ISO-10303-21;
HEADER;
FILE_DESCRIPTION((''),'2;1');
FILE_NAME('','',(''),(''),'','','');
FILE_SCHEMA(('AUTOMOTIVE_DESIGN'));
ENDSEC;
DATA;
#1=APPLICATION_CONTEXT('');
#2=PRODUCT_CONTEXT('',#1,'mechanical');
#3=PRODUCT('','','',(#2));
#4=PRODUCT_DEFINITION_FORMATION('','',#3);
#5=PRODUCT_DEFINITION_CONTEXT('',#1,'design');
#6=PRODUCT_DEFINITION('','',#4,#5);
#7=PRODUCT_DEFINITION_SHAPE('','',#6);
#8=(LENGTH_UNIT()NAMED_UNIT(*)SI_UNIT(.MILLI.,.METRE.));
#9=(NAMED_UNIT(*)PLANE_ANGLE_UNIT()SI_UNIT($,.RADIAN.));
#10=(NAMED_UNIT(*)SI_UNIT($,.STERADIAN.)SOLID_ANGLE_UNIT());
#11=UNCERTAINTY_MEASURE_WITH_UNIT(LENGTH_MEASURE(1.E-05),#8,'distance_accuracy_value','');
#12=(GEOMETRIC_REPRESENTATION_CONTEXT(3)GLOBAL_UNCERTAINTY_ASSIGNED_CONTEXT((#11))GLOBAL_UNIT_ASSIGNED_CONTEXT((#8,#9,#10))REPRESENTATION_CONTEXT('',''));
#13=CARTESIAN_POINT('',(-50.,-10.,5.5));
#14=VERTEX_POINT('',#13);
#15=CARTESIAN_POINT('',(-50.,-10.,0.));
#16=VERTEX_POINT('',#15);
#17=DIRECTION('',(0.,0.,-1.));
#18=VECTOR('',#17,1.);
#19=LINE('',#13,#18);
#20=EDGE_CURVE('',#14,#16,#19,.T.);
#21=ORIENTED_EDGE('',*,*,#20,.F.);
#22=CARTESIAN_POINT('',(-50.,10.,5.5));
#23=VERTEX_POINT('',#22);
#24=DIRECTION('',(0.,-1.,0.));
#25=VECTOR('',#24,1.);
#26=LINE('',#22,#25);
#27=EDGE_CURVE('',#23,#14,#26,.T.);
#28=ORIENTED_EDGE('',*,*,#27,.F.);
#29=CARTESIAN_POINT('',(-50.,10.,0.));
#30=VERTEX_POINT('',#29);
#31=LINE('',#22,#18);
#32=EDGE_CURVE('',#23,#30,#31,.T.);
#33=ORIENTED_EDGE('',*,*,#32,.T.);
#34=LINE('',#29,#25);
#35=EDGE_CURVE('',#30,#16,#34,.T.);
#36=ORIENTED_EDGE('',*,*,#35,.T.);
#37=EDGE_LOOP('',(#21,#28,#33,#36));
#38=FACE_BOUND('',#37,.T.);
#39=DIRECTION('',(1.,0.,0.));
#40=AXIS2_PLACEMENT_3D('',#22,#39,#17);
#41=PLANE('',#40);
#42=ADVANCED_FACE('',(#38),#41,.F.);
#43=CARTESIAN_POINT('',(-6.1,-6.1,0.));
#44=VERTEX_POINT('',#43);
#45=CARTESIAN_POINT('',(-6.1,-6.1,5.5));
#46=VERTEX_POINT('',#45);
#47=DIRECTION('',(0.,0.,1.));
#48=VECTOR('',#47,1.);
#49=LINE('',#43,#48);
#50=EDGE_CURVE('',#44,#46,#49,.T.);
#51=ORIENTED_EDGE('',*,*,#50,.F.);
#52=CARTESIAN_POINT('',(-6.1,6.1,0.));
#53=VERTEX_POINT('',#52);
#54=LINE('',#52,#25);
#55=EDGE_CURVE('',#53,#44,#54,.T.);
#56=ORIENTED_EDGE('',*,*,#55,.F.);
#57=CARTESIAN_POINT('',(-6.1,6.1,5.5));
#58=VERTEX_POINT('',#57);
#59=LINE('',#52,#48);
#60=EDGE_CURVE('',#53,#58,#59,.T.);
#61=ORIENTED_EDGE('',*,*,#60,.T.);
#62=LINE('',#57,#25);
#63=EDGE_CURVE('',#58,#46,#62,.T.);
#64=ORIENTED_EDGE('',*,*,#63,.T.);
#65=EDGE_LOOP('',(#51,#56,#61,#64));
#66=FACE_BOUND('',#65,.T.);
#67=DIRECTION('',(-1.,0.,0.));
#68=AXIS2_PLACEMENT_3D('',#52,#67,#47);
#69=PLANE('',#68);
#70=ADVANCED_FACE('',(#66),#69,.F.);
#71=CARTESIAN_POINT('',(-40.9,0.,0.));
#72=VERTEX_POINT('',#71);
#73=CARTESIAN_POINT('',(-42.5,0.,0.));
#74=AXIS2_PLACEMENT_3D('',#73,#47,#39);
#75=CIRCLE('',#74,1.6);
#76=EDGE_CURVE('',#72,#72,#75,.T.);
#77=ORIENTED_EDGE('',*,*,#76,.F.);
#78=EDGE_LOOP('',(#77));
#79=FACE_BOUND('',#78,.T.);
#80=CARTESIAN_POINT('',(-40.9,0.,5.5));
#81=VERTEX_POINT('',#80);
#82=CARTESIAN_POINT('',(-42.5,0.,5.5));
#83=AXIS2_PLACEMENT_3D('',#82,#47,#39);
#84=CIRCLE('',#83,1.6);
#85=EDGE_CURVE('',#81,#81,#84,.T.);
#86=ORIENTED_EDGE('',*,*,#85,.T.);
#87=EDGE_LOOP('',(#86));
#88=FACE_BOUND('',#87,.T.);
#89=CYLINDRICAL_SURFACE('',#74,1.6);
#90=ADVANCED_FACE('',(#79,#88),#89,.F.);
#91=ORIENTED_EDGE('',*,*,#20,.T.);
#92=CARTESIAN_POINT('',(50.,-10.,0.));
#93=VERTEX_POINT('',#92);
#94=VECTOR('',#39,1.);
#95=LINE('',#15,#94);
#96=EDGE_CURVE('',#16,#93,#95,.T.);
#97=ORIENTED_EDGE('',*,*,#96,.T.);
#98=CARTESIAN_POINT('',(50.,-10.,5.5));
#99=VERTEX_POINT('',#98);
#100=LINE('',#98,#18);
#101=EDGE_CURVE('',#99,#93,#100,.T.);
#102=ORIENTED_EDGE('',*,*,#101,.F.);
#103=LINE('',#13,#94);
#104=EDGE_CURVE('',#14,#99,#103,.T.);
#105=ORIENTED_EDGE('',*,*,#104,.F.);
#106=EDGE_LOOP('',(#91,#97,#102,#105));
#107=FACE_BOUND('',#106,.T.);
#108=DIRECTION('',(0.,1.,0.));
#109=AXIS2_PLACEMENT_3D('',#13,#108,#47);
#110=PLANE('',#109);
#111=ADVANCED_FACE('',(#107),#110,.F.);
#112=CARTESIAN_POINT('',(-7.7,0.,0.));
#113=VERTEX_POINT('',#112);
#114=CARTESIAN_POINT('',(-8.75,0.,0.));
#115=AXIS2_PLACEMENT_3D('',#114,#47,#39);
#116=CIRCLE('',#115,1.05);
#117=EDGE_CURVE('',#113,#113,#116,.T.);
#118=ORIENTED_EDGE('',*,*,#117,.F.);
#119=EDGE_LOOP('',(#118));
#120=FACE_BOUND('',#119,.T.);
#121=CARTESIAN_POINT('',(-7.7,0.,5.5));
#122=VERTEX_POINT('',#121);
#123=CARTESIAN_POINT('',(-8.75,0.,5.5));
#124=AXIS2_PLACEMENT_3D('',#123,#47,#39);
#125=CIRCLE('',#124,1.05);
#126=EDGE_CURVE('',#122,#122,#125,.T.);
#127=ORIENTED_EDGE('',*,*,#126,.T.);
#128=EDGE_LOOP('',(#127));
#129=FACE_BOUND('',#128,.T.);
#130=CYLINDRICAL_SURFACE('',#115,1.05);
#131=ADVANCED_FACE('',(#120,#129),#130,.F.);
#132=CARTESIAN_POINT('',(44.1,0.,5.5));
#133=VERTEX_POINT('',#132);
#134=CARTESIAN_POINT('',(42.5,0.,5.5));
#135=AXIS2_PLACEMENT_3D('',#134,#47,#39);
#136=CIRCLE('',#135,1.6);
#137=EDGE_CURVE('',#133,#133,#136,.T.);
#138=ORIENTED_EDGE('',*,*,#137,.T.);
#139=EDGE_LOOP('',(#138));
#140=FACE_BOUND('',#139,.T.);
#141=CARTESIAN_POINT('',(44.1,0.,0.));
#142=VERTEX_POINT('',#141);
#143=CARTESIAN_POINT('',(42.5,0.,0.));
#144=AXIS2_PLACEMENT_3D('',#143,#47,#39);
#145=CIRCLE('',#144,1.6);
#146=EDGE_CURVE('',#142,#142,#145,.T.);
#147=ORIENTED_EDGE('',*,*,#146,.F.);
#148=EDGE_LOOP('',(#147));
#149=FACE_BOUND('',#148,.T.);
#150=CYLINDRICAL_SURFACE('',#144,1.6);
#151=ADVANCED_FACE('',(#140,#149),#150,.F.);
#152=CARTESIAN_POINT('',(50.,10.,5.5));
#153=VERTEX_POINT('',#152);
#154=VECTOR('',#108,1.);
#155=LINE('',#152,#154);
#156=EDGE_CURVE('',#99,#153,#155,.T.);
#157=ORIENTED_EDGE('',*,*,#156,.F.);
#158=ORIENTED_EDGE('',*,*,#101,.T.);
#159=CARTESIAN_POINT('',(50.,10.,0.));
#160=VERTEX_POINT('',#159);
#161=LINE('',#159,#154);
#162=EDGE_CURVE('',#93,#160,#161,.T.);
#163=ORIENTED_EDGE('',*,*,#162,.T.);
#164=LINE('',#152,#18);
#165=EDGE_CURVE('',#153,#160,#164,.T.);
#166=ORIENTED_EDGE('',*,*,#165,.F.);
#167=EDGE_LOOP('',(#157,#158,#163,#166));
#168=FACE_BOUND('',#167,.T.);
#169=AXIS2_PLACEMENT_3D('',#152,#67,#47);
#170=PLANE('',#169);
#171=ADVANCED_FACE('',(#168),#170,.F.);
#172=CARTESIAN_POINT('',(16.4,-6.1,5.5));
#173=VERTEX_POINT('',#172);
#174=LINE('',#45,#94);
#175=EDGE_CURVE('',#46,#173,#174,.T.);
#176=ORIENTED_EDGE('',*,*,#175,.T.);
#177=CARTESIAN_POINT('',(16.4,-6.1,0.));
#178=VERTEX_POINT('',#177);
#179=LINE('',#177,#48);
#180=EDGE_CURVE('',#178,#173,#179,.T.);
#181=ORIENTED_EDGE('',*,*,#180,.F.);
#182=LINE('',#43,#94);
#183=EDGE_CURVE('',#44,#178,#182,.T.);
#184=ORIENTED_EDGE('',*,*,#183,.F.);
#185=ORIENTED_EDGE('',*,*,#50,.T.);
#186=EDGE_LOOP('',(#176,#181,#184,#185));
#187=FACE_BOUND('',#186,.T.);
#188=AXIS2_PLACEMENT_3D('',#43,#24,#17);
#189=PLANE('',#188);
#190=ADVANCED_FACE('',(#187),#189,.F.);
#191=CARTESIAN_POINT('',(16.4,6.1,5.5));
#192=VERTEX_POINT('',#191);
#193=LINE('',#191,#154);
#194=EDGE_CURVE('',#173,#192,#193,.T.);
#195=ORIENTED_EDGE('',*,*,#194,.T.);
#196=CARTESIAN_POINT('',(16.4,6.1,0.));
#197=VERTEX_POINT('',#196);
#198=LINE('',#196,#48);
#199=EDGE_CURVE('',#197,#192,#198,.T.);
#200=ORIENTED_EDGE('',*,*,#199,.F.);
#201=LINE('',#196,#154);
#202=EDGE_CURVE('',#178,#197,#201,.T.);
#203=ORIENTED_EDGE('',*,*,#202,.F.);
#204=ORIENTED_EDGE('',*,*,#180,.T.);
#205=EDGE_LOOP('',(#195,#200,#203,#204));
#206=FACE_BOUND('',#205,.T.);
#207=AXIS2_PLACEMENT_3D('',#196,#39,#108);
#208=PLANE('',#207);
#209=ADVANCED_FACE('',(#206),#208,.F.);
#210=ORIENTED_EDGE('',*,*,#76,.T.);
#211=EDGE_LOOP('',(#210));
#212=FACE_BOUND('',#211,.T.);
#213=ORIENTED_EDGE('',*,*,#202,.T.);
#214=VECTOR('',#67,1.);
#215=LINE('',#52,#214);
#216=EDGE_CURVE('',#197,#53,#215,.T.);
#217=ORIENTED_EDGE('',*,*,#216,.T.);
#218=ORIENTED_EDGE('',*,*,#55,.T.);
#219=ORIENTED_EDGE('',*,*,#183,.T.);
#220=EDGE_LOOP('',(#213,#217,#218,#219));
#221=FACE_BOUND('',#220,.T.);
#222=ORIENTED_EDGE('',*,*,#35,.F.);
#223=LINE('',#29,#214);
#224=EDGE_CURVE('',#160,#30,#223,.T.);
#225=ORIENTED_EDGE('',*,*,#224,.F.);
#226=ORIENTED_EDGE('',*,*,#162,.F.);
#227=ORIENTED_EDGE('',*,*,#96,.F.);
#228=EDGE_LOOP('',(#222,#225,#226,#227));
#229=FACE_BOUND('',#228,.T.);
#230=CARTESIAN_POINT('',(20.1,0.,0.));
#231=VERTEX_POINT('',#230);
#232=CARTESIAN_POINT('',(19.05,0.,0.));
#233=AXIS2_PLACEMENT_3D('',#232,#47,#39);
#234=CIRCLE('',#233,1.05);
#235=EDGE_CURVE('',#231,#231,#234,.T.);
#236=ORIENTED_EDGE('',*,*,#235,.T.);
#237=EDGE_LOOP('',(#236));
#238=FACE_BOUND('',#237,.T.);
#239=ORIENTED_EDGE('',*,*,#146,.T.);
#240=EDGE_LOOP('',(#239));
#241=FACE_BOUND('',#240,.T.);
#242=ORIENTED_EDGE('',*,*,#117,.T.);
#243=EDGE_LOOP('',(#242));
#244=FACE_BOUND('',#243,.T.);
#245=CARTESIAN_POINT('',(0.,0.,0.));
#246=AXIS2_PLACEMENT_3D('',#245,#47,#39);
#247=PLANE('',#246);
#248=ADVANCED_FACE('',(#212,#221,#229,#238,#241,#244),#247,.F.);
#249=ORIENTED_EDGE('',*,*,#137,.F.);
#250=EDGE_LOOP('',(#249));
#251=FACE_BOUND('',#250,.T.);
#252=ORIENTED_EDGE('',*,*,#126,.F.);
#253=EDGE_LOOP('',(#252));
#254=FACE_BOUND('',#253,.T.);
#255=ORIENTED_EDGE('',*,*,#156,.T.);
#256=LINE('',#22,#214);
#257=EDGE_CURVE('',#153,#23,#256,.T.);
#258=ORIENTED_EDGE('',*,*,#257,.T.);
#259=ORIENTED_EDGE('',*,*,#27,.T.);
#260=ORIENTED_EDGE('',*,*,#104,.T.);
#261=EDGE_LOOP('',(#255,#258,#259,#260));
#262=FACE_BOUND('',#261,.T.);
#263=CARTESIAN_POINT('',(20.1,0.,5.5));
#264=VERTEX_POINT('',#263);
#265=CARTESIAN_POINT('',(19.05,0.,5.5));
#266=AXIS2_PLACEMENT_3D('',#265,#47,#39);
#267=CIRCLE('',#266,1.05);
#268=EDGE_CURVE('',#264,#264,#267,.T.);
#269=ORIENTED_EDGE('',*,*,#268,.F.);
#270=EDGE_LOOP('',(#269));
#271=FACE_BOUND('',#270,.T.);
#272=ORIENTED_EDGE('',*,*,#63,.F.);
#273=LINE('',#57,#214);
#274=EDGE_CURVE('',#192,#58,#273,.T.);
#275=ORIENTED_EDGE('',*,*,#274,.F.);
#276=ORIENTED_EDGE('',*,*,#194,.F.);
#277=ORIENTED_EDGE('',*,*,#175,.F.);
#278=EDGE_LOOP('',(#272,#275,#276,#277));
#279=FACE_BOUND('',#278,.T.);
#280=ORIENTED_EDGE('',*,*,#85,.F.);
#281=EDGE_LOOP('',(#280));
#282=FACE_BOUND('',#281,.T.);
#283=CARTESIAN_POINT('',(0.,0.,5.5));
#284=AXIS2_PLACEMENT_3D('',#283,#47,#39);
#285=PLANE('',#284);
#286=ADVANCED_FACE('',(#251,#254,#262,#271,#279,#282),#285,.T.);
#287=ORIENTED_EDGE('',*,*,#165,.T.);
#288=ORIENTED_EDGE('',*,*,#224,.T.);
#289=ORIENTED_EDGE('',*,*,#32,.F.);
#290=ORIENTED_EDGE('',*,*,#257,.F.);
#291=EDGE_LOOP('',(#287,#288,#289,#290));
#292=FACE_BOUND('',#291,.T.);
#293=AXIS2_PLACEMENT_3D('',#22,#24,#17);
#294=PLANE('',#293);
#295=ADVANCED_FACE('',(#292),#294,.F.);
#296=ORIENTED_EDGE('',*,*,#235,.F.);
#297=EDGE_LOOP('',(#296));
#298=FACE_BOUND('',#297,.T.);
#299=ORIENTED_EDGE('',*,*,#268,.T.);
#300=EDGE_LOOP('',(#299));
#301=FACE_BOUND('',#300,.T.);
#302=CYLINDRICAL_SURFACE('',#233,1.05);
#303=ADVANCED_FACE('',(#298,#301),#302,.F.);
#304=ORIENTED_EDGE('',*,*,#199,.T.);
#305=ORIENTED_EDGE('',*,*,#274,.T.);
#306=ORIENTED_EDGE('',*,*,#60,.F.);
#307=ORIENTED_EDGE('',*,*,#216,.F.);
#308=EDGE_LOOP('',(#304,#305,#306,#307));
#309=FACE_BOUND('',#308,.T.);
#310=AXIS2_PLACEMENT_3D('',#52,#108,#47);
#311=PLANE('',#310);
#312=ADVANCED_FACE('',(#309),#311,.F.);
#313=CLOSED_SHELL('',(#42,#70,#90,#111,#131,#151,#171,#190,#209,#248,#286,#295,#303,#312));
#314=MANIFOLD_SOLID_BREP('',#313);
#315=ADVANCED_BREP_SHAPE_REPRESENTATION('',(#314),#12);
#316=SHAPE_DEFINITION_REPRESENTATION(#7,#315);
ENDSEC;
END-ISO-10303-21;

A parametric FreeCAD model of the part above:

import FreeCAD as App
import Part
import Sketcher
from FreeCAD import Vector

doc = App.newDocument("Part")
params = doc.addObject("Spreadsheet::Sheet", "Params")
for row, (alias, value) in enumerate([
    ("sketch1_width", "100 mm"),
    ("sketch1_height", "20 mm"),
    ("pad1_length", "5.5 mm"),
    ("sketch2_diameter", "3.2 mm"),
    ("sketch2_diameter2", "2.1 mm"),
    ("sketch2_width", "22.5 mm"),
    ("sketch2_height", "12.2 mm"),
], start=1):
    params.set(f"A{row}", alias)
    params.set(f"B{row}", "=" + value)
    params.setAlias(f"B{row}", alias)

body = doc.addObject("PartDesign::Body", "Body")

sketch1 = doc.addObject("Sketcher::SketchObject", "Sketch")
body.addObject(sketch1)
sketch1.AttachmentSupport = (doc.XY_Plane, [""])
sketch1.MapMode = "FlatFace"
sketch1.addGeometry(Part.LineSegment(Vector(-50, 10, 0), Vector(-50, -10, 0)), False)
sketch1.addGeometry(Part.LineSegment(Vector(-50, -10, 0), Vector(50, -10, 0)), False)
sketch1.addGeometry(Part.LineSegment(Vector(50, -10, 0), Vector(50, 10, 0)), False)
sketch1.addGeometry(Part.LineSegment(Vector(50, 10, 0), Vector(-50, 10, 0)), False)
sketch1.addConstraint(Sketcher.Constraint("Coincident", 0, 2, 1, 1))
sketch1.addConstraint(Sketcher.Constraint("Coincident", 1, 2, 2, 1))
sketch1.addConstraint(Sketcher.Constraint("Coincident", 2, 2, 3, 1))
sketch1.addConstraint(Sketcher.Constraint("Coincident", 3, 2, 0, 1))
sketch1.addConstraint(Sketcher.Constraint("Vertical", 0))
sketch1.addConstraint(Sketcher.Constraint("Horizontal", 1))
sketch1.addConstraint(Sketcher.Constraint("Vertical", 2))
sketch1.addConstraint(Sketcher.Constraint("Horizontal", 3))
sketch1.addConstraint(Sketcher.Constraint("Symmetric", 0, 2, 2, 2, -1, 1))
sketch1.addConstraint(Sketcher.Constraint("DistanceX", 1, 1, 1, 2, 100.0))
sketch1.addConstraint(Sketcher.Constraint("DistanceY", 0, 2, 0, 1, 20.0))
sketch1.setExpression("Constraints[9]", "Params.sketch1_width")
sketch1.setExpression("Constraints[10]", "Params.sketch1_height")
pad1 = doc.addObject("PartDesign::Pad", "Pad")
body.addObject(pad1)
pad1.Profile = sketch1
pad1.setExpression("Length", "Params.pad1_length")

sketch2 = doc.addObject("Sketcher::SketchObject", "Sketch001")
body.addObject(sketch2)
sketch2.AttachmentSupport = (doc.XY_Plane, [""])
sketch2.MapMode = "FlatFace"
sketch2.AttachmentOffset = App.Placement(Vector(0, 0, 5.5), App.Rotation())
sketch2.addGeometry(Part.Circle(Vector(-42.5, 0, 0), Vector(0, 0, 1), 1.6), False)
sketch2.addGeometry(Part.Circle(Vector(42.5, 0, 0), Vector(0, 0, 1), 1.6), False)
sketch2.addGeometry(Part.Circle(Vector(-8.8, 0, 0), Vector(0, 0, 1), 1.1), False)
sketch2.addGeometry(Part.Circle(Vector(19.1, 0, 0), Vector(0, 0, 1), 1.1), False)
sketch2.addGeometry(Part.LineSegment(Vector(-6.1, 6.1, 0), Vector(-6.1, -6.1, 0)), False)
sketch2.addGeometry(Part.LineSegment(Vector(-6.1, -6.1, 0), Vector(16.4, -6.1, 0)), False)
sketch2.addGeometry(Part.LineSegment(Vector(16.4, -6.1, 0), Vector(16.4, 6.1, 0)), False)
sketch2.addGeometry(Part.LineSegment(Vector(16.4, 6.1, 0), Vector(-6.1, 6.1, 0)), False)
sketch2.addConstraint(Sketcher.Constraint("Coincident", 4, 2, 5, 1))
sketch2.addConstraint(Sketcher.Constraint("Coincident", 5, 2, 6, 1))
sketch2.addConstraint(Sketcher.Constraint("Coincident", 6, 2, 7, 1))
sketch2.addConstraint(Sketcher.Constraint("Coincident", 7, 2, 4, 1))
sketch2.addConstraint(Sketcher.Constraint("Vertical", 4))
sketch2.addConstraint(Sketcher.Constraint("Horizontal", 5))
sketch2.addConstraint(Sketcher.Constraint("Vertical", 6))
sketch2.addConstraint(Sketcher.Constraint("Horizontal", 7))
sketch2.addConstraint(Sketcher.Constraint("Equal", 0, 1))
sketch2.addConstraint(Sketcher.Constraint("Equal", 2, 3))
sketch2.addConstraint(Sketcher.Constraint("Symmetric", 0, 3, 1, 3, -1, 1))
sketch2.addConstraint(Sketcher.Constraint("PointOnObject", 0, 3, -1))
sketch2.addConstraint(Sketcher.Constraint("PointOnObject", 2, 3, -1))
sketch2.addConstraint(Sketcher.Constraint("PointOnObject", 3, 3, -1))
sketch2.addConstraint(Sketcher.Constraint("Diameter", 0, 3.2))
sketch2.addConstraint(Sketcher.Constraint("Diameter", 2, 2.1))
sketch2.addConstraint(Sketcher.Constraint("DistanceX", 5, 1, 5, 2, 22.5))
sketch2.addConstraint(Sketcher.Constraint("DistanceY", 4, 2, 4, 1, 12.2))
sketch2.addConstraint(Sketcher.Constraint("DistanceX", 0, 3, 1, 3, 85.0))
sketch2.addConstraint(Sketcher.Constraint("DistanceX", 4, 2, -1, 1, 6.1))
sketch2.addConstraint(Sketcher.Constraint("DistanceY", 4, 2, -1, 1, 6.1))
sketch2.addConstraint(Sketcher.Constraint("DistanceX", 2, 3, 3, 3, 27.8))
sketch2.addConstraint(Sketcher.Constraint("DistanceX", 2, 3, -1, 1, 8.75))
sketch2.setExpression("Constraints[14]", "Params.sketch2_diameter")
sketch2.setExpression("Constraints[15]", "Params.sketch2_diameter2")
sketch2.setExpression("Constraints[16]", "Params.sketch2_width")
sketch2.setExpression("Constraints[17]", "Params.sketch2_height")
pocket1 = doc.addObject("PartDesign::Pocket", "Pocket")
body.addObject(pocket1)
pocket1.Profile = sketch2
pocket1.Type = "ThroughAll"

doc.recompute()
